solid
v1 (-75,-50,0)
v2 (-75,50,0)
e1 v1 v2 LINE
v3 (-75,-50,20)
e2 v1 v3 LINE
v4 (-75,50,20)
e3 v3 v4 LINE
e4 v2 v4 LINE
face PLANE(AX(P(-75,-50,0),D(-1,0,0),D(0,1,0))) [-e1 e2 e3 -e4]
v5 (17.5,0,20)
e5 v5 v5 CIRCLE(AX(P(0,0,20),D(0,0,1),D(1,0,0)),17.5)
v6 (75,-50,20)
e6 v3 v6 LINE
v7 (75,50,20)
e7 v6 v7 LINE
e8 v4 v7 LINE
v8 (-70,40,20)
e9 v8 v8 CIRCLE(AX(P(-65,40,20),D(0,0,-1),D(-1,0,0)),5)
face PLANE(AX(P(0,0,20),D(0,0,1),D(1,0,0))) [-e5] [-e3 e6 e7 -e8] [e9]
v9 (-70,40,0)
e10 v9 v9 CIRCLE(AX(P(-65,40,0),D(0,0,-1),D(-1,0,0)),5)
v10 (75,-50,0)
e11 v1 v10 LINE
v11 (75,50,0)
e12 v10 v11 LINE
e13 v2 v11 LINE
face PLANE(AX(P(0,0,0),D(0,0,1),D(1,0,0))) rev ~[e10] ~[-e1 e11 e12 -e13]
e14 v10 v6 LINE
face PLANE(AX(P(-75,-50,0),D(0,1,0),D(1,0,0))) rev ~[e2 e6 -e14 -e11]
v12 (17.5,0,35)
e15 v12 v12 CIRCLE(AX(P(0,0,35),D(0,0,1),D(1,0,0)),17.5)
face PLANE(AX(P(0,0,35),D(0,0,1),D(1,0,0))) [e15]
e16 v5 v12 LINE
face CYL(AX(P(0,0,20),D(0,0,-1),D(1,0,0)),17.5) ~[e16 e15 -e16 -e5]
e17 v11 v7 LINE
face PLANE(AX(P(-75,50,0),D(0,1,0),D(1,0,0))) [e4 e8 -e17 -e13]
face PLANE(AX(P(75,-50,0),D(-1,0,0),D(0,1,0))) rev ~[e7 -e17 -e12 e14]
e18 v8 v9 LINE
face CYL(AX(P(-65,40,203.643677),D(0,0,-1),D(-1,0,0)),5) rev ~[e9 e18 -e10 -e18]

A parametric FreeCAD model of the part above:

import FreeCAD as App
import Part
import Sketcher


def add_polygon(sketch, points):
    """Adds a closed chain of lines whose ends are joined by coincident constraints."""
    first, n = sketch.GeometryCount, len(points)
    for a, b in zip(points, points[1:] + points[:1]):
        sketch.addGeometry(Part.LineSegment(App.Vector(*a, 0), App.Vector(*b, 0)), False)
    for i in range(n):
        sketch.addConstraint(Sketcher.Constraint("Coincident", first + i, 2, first + (i + 1) % n, 1))

doc = App.newDocument("Part")
params = doc.addObject("Spreadsheet::Sheet", "Params")
for row, (alias, value) in enumerate([
    ("sketch1_width", "150 mm"),
    ("sketch1_height", "100 mm"),
    ("pad1_length", "20 mm"),
    ("sketch2_diameter", "35 mm"),
    ("pad2_length", "15 mm"),
    ("sketch3_diameter", "10 mm"),
    ("hole_diameter", "10 mm"),
], start=1):
    params.set(f"A{row}", alias)
    params.set(f"B{row}", "=" + value)
    params.setAlias(f"B{row}", alias)

body = doc.addObject("PartDesign::Body", "Body")

sketch1 = body.newObject("Sketcher::SketchObject", "Sketch")
sketch1.AttachmentSupport = (doc.getObject("XY_Plane"), [""])
sketch1.MapMode = "FlatFace"
add_polygon(sketch1, [(-75, 50), (-75, -50), (75, -50), (75, 50)])
sketch1.addConstraint([
    Sketcher.Constraint("Vertical", 0),
    Sketcher.Constraint("Horizontal", 1),
    Sketcher.Constraint("Vertical", 2),
    Sketcher.Constraint("Horizontal", 3),
    Sketcher.Constraint("Symmetric", 0, 2, 2, 2, -1, 1),
    Sketcher.Constraint("DistanceX", 1, 1, 1, 2, 150.0),
    Sketcher.Constraint("DistanceY", 0, 2, 0, 1, 100.0),
])
sketch1.setExpression("Constraints[9]", "Params.sketch1_width")
sketch1.setExpression("Constraints[10]", "Params.sketch1_height")
pad1 = body.newObject("PartDesign::Pad", "Pad")
pad1.Profile = sketch1
pad1.setExpression("Length", "Params.pad1_length")

sketch2 = body.newObject("Sketcher::SketchObject", "Sketch001")
sketch2.AttachmentSupport = (doc.getObject("XY_Plane"), [""])
sketch2.MapMode = "FlatFace"
sketch2.AttachmentOffset = App.Placement(App.Vector(0, 0, 20), App.Rotation())
sketch2.addGeometry(Part.Circle(App.Vector(0, 0, 0), App.Vector(0, 0, 1), 17.5), False)
sketch2.addConstraint([
    Sketcher.Constraint("Coincident", 0, 3, -1, 1),
    Sketcher.Constraint("Diameter", 0, 35.0),
])
sketch2.setExpression("Constraints[1]", "Params.sketch2_diameter")
pad2 = body.newObject("PartDesign::Pad", "Pad001")
pad2.Profile = sketch2
pad2.setExpression("Length", "Params.pad2_length")

sketch3 = body.newObject("Sketcher::SketchObject", "Sketch002")
sketch3.AttachmentSupport = (doc.getObject("XY_Plane"), [""])
sketch3.MapMode = "FlatFace"
sketch3.AttachmentOffset = App.Placement(App.Vector(0, 0, 20), App.Rotation())
sketch3.addGeometry(Part.Circle(App.Vector(-65, 40, 0), App.Vector(0, 0, 1), 5), False)
sketch3.addConstraint([
    Sketcher.Constraint("Diameter", 0, 10.0),
    Sketcher.Constraint("DistanceX", 0, 3, -1, 1, 65.0),
    Sketcher.Constraint("DistanceY", -1, 1, 0, 3, 40.0),
])
sketch3.setExpression("Constraints[0]", "Params.sketch3_diameter")
doc.recompute()
hole = body.newObject("PartDesign::Hole", "Hole")
hole.Profile = sketch3
hole.ThreadType = "None"
hole.setExpression("Diameter", "Params.hole_diameter")
hole.DepthType = "ThroughAll"

doc.recompute()
